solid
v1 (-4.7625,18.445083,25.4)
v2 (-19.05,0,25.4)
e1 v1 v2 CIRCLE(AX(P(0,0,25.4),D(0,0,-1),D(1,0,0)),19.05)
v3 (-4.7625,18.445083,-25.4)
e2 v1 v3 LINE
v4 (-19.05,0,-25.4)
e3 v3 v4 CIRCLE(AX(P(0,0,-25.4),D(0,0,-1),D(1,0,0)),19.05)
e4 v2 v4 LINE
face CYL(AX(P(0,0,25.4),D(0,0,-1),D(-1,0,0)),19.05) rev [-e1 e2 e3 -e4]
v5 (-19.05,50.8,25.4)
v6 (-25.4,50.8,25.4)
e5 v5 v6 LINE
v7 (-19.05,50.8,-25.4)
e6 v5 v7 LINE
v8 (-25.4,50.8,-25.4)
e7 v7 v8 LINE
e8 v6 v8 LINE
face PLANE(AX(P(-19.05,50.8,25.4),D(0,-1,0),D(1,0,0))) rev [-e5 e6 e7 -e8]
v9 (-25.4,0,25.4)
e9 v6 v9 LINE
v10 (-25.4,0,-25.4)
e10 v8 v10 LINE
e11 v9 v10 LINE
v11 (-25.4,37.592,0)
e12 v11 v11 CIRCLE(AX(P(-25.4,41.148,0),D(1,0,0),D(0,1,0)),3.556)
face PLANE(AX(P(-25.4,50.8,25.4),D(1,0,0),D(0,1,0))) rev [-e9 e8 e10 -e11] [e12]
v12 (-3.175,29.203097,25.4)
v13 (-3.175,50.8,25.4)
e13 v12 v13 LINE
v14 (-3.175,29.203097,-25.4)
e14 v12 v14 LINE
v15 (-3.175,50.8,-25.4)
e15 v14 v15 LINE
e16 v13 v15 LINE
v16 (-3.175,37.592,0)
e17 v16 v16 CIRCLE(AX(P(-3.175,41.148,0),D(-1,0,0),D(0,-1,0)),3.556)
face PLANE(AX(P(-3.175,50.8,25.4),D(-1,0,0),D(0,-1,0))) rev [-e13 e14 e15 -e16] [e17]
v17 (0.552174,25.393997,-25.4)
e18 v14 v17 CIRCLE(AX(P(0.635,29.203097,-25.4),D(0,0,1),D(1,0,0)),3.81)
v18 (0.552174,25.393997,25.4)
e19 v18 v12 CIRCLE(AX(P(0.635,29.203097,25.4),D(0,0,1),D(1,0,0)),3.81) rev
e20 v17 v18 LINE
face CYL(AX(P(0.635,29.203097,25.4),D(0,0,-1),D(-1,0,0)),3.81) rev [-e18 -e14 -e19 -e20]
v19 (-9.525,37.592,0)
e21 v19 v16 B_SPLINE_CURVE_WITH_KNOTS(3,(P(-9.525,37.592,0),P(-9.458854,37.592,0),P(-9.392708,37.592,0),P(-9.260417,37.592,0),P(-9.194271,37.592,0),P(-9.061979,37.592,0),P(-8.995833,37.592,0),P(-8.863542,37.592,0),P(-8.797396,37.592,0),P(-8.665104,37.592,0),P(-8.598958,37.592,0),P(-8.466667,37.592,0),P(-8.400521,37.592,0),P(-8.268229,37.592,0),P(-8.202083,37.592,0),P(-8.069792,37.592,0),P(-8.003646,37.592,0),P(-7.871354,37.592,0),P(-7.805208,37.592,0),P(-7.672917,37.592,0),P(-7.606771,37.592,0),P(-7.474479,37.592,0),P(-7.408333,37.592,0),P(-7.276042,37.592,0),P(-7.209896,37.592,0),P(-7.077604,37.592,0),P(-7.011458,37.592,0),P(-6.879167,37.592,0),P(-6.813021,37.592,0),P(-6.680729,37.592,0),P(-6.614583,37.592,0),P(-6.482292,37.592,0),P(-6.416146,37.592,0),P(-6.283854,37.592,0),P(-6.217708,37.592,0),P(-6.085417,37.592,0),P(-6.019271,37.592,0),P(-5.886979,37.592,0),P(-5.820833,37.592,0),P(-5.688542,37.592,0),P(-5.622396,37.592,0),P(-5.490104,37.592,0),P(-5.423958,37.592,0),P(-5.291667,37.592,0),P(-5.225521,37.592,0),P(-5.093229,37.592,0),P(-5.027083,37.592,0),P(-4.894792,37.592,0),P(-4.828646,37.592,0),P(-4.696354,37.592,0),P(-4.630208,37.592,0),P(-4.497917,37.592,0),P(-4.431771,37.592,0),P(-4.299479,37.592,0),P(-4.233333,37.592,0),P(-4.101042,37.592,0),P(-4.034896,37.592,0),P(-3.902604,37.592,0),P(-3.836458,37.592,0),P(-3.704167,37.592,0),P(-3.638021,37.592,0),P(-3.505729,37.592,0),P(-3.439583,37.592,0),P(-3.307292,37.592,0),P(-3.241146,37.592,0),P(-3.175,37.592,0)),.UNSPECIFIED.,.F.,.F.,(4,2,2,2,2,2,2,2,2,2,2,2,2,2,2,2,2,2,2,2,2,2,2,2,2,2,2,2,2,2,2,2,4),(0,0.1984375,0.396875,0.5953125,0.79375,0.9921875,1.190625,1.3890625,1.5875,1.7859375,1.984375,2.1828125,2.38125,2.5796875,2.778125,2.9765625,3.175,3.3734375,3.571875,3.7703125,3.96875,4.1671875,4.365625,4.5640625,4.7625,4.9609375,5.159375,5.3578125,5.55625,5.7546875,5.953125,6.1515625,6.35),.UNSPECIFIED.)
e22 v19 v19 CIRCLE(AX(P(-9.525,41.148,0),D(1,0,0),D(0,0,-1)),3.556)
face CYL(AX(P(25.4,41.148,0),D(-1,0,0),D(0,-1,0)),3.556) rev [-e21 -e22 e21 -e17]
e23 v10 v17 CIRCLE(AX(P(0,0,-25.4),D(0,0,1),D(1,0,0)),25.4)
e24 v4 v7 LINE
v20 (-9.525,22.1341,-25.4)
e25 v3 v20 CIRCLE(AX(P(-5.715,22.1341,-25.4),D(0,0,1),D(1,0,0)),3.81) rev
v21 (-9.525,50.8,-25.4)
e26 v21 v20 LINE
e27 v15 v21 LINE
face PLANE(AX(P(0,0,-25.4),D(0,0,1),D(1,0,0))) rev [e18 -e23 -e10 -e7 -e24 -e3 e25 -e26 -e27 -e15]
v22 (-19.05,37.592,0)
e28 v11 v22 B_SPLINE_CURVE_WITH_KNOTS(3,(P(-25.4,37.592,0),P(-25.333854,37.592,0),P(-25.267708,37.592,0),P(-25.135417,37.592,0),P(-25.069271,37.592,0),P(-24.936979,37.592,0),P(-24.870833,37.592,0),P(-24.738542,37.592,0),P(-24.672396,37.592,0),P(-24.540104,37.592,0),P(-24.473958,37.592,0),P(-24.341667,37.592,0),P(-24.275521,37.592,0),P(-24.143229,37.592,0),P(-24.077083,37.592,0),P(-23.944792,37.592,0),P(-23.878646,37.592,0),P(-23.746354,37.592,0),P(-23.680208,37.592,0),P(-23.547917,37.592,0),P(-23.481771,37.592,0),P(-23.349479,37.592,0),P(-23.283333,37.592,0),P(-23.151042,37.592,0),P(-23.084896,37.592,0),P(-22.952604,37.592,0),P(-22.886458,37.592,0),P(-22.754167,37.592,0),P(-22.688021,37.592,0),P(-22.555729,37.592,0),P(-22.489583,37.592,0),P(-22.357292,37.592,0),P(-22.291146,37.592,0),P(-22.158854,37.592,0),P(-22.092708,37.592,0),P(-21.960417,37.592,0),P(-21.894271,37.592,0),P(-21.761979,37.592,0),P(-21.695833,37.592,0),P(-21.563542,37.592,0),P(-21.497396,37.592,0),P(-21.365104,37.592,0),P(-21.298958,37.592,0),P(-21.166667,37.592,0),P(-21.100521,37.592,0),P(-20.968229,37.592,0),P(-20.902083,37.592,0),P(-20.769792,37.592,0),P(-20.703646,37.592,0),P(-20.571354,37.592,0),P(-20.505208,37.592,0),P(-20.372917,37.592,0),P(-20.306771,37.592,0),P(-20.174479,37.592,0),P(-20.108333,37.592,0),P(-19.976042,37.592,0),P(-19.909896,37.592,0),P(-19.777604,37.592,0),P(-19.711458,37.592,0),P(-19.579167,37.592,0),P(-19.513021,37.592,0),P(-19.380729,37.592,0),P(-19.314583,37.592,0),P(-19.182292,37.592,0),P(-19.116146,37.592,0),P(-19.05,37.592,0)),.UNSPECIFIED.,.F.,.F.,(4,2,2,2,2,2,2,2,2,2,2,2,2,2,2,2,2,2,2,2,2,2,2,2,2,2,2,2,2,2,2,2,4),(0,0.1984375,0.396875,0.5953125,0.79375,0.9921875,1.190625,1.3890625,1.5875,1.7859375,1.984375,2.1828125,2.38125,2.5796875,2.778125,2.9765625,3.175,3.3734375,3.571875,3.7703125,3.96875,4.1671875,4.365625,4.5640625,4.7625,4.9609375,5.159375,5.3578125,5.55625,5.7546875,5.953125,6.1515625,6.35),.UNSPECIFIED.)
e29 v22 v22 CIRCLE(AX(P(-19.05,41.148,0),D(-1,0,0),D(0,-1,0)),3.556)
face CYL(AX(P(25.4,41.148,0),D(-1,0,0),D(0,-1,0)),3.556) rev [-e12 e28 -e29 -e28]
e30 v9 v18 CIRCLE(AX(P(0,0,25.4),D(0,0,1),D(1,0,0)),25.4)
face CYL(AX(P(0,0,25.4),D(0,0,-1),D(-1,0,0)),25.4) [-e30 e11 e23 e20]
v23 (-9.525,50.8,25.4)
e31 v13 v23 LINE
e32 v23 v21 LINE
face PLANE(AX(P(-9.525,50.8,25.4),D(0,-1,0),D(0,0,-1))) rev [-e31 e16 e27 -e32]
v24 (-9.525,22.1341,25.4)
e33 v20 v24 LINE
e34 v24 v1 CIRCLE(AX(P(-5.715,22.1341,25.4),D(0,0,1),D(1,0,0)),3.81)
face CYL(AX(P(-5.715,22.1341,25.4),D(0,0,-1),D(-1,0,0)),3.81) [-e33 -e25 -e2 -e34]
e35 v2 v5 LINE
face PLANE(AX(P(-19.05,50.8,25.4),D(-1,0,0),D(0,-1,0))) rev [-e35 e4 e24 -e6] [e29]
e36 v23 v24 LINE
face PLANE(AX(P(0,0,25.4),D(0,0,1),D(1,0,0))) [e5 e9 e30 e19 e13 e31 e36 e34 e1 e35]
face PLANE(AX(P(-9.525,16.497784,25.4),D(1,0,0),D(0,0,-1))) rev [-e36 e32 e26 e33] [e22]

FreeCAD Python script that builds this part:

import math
import FreeCAD as App
import Part
import Sketcher
from FreeCAD import Vector
Q = App.Units.Quantity


def edges_at(feature, points):
    """Names of the edges that pass closest to the given points."""
    edges = feature.Shape.Edges
    near = lambda p: min(range(len(edges)), key=lambda i: edges[i].distToShape(Part.Vertex(*p))[0])
    return sorted({f"Edge{near(p) + 1}" for p in points})

doc = App.newDocument("Part")
body = doc.addObject("PartDesign::Body", "Body")

# Sketch on XY plane
sketch1 = doc.addObject("Sketcher::SketchObject", "Sketch")
body.addObject(sketch1)
sketch1.AttachmentSupport = (doc.XY_Plane, [""])
sketch1.MapMode = "FlatFace"
sketch1.addGeometry([
    Part.LineSegment(Vector(-19, 51, 0), Vector(-25, 51, 0)),  # 0
    Part.LineSegment(Vector(-25, 51, 0), Vector(-25, 0, 0)),  # 1
    Part.ArcOfCircle(Part.Circle(Vector(0, 0, 0), Vector(0, 0, 1), 25), math.radians(180), math.radians(457)),  # 2
    Part.LineSegment(Vector(-3, 25, 0), Vector(-3, 51, 0)),  # 3
    Part.LineSegment(Vector(-3, 51, 0), Vector(-10, 51, 0)),  # 4
    Part.LineSegment(Vector(-10, 51, 0), Vector(-10, 16, 0)),  # 5
    Part.ArcOfCircle(Part.Circle(Vector(0, 0, 0), Vector(0, 0, 1), 19), math.radians(180), math.radians(480)),  # 6
    Part.LineSegment(Vector(-19, 0, 0), Vector(-19, 51, 0)),  # 7
], False)
sketch1.addConstraint([
    Sketcher.Constraint("Coincident", 0, 2, 1, 1),
    Sketcher.Constraint("Tangent", 1, 2, 2, 1),
    Sketcher.Constraint("Coincident", 2, 2, 3, 1),
    Sketcher.Constraint("Coincident", 3, 2, 4, 1),
    Sketcher.Constraint("Coincident", 4, 2, 5, 1),
    Sketcher.Constraint("Coincident", 5, 2, 6, 2),
    Sketcher.Constraint("Tangent", 6, 1, 7, 1),
    Sketcher.Constraint("Coincident", 7, 2, 0, 1),
    Sketcher.Constraint("Horizontal", 0),
    Sketcher.Constraint("Vertical", 1),
    Sketcher.Constraint("Vertical", 3),
    Sketcher.Constraint("Horizontal", 4),
    Sketcher.Constraint("Vertical", 5),
    Sketcher.Constraint("Vertical", 7),
    Sketcher.Constraint("Coincident", 2, 3, -1, 1),
    Sketcher.Constraint("Coincident", 6, 3, -1, 1),
    Sketcher.Constraint("Horizontal", 0, 2, 3, 2),
    Sketcher.Constraint("Equal", 0, 4),
    Sketcher.Constraint("Radius", 2, Q("1 in")),
    Sketcher.Constraint("DistanceY", 1, 2, 1, 1, Q("2 in")),
    Sketcher.Constraint("Radius", 6, Q("0.75 in")),
    Sketcher.Constraint("DistanceX", 2, 2, -1, 1, Q("0.125 in")),
])
pad1 = doc.addObject("PartDesign::Pad", "Pad")
body.addObject(pad1)
pad1.Profile = sketch1
pad1.Length = Q("2 in")
pad1.Midplane = True
doc.recompute()

fillet = doc.addObject("PartDesign::Fillet", "Fillet")
body.addObject(fillet)
fillet.Base = (pad1, edges_at(pad1, [(-9.525, 16.498, 0)]))
fillet.Radius = Q("0.15 in")
doc.recompute()

fillet2 = doc.addObject("PartDesign::Fillet", "Fillet001")
body.addObject(fillet2)
fillet2.Base = (fillet, edges_at(fillet, [(-3.175, 25.201, 0)]))
fillet2.Radius = Q("0.15 in")

# Sketch on YZ plane
sketch2 = doc.addObject("Sketcher::SketchObject", "Sketch001")
body.addObject(sketch2)
sketch2.AttachmentSupport = (doc.YZ_Plane, [""])
sketch2.MapMode = "FlatFace"
sketch2.AttachmentOffset = App.Placement(Vector(0, 0, -1 * 25.4), App.Rotation())
sketch2.addGeometry(Part.Circle(Vector(41.1, 0, 0), Vector(0, 0, 1), 3.6), False)
sketch2.addConstraint([
    Sketcher.Constraint("PointOnObject", 0, 3, -1),
    Sketcher.Constraint("Diameter", 0, Q("0.28 in")),
    Sketcher.Constraint("DistanceX", -1, 1, 0, 3, Q("1.62 in")),
])
pocket1 = doc.addObject("PartDesign::Pocket", "Pocket")
body.addObject(pocket1)
pocket1.Profile = sketch2
pocket1.Type = "ThroughAll"
pocket1.Midplane = True

doc.recompute()
